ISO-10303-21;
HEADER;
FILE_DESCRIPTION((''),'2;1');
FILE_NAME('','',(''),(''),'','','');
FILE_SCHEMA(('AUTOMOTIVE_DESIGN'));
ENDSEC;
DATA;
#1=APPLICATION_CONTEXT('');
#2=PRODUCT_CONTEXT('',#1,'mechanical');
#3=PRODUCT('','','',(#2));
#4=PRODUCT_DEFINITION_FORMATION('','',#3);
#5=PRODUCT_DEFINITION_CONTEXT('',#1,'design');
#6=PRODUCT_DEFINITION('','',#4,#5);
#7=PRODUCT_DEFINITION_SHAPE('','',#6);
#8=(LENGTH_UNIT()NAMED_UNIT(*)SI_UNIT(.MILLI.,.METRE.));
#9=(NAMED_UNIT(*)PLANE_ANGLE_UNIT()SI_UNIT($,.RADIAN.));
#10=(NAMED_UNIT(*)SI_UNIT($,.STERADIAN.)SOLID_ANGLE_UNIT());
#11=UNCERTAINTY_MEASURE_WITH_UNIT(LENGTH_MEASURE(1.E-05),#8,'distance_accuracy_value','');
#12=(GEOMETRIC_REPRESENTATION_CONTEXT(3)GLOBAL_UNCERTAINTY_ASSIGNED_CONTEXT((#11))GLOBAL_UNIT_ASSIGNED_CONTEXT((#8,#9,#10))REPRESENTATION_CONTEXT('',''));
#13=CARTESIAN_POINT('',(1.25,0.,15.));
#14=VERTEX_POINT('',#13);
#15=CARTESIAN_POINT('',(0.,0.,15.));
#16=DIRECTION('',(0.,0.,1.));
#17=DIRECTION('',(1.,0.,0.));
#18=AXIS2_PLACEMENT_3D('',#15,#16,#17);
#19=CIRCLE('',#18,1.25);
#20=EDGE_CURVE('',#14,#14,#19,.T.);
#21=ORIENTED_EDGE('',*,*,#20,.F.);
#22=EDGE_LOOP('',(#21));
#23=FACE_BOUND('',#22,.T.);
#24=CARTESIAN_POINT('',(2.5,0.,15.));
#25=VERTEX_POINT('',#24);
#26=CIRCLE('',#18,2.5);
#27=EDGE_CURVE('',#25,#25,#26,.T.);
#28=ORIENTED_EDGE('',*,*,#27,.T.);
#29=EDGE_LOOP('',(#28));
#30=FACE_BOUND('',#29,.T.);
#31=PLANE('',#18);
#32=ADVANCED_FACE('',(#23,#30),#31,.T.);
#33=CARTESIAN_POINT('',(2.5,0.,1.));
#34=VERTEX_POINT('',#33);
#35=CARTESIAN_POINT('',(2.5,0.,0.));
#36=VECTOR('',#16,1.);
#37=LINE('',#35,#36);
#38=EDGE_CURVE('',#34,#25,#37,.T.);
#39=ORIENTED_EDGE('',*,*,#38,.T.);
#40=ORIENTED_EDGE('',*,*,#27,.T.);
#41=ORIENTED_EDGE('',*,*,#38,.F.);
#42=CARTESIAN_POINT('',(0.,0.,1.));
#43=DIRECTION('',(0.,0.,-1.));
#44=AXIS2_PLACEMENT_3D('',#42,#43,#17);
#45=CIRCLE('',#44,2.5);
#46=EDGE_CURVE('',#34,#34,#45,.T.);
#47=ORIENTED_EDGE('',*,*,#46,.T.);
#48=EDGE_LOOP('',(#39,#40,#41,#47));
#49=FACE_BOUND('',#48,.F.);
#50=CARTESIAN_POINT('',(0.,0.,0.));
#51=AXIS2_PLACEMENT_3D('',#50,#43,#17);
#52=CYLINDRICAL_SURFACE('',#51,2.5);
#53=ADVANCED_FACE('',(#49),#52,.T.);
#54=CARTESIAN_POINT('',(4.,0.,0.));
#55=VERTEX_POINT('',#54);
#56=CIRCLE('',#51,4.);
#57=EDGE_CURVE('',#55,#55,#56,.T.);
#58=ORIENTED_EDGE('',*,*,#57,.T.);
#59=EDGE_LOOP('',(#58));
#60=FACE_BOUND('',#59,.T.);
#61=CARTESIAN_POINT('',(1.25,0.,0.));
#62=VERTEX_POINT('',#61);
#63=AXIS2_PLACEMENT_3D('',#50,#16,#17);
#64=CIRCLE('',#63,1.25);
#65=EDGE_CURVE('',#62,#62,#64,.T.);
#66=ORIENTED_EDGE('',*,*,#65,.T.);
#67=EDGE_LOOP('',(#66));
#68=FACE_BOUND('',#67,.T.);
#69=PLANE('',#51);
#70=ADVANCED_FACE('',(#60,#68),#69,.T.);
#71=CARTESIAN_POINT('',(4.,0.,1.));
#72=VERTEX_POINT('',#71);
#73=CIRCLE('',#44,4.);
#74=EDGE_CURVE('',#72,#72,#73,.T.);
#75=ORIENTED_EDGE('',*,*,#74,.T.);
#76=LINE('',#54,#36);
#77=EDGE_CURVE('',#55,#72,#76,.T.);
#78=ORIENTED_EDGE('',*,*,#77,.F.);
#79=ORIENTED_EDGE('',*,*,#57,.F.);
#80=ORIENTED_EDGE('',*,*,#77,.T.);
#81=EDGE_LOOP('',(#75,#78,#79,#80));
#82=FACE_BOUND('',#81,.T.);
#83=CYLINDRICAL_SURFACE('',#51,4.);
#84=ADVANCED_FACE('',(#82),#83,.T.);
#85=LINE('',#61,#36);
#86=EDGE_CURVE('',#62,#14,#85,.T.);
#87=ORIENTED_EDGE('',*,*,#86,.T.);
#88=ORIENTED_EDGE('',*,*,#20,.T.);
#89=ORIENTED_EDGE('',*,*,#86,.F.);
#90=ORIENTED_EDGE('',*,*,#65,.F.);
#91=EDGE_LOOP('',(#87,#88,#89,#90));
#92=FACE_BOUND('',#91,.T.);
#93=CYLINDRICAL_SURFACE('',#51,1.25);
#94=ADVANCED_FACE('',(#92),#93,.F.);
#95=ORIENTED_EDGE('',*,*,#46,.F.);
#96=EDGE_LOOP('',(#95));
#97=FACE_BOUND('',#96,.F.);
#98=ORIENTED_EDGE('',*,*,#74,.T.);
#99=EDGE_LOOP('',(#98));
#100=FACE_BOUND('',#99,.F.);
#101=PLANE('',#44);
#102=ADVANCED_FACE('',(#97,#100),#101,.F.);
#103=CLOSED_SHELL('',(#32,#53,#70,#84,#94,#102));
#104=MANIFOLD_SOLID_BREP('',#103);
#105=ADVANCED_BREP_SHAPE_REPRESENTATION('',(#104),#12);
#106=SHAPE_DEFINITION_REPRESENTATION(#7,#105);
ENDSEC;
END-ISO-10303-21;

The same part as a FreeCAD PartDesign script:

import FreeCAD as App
import Part
import Sketcher
from FreeCAD import Vector
Q = App.Units.Quantity

doc = App.newDocument("Part")
body = doc.addObject("PartDesign::Body", "Body")

# Sketch on XY plane
sketch1 = body.newObject("Sketcher::SketchObject", "Sketch")
sketch1.AttachmentSupport = (doc.getObject("XY_Plane"), [""])
sketch1.MapMode = "FlatFace"
sketch1.addGeometry([
    Part.Circle(Vector(0, 0, 0), Vector(0, 0, 1), 2.5),
    Part.Circle(Vector(0, 0, 0), Vector(0, 0, 1), 1.2),
], False)
sketch1.addConstraint([
    Sketcher.Constraint("Coincident", 0, 3, -1, 1),
    Sketcher.Constraint("Coincident", 1, 3, -1, 1),
    Sketcher.Constraint("Diameter", 0, Q("5 mm")),
    Sketcher.Constraint("Diameter", 1, Q("2.5 mm")),
])
pad1 = body.newObject("PartDesign::Pad", "Pad")
pad1.Profile = sketch1
pad1.Length = 15

# Sketch on XY plane
sketch2 = body.newObject("Sketcher::SketchObject", "Sketch001")
sketch2.AttachmentSupport = (doc.getObject("XY_Plane"), [""])
sketch2.MapMode = "FlatFace"
sketch2.addGeometry([
    Part.Circle(Vector(0, 0, 0), Vector(0, 0, 1), 4),
    Part.Circle(Vector(0, 0, 0), Vector(0, 0, 1), 2.5),
], False)
sketch2.addConstraint([
    Sketcher.Constraint("Coincident", 0, 3, -1, 1),
    Sketcher.Constraint("Coincident", 1, 3, -1, 1),
    Sketcher.Constraint("Diameter", 0, Q("8 mm")),
    Sketcher.Constraint("Diameter", 1, Q("5 mm")),
])
pad2 = body.newObject("PartDesign::Pad", "Pad001")
pad2.Profile = sketch2
pad2.Length = 1

doc.recompute()
